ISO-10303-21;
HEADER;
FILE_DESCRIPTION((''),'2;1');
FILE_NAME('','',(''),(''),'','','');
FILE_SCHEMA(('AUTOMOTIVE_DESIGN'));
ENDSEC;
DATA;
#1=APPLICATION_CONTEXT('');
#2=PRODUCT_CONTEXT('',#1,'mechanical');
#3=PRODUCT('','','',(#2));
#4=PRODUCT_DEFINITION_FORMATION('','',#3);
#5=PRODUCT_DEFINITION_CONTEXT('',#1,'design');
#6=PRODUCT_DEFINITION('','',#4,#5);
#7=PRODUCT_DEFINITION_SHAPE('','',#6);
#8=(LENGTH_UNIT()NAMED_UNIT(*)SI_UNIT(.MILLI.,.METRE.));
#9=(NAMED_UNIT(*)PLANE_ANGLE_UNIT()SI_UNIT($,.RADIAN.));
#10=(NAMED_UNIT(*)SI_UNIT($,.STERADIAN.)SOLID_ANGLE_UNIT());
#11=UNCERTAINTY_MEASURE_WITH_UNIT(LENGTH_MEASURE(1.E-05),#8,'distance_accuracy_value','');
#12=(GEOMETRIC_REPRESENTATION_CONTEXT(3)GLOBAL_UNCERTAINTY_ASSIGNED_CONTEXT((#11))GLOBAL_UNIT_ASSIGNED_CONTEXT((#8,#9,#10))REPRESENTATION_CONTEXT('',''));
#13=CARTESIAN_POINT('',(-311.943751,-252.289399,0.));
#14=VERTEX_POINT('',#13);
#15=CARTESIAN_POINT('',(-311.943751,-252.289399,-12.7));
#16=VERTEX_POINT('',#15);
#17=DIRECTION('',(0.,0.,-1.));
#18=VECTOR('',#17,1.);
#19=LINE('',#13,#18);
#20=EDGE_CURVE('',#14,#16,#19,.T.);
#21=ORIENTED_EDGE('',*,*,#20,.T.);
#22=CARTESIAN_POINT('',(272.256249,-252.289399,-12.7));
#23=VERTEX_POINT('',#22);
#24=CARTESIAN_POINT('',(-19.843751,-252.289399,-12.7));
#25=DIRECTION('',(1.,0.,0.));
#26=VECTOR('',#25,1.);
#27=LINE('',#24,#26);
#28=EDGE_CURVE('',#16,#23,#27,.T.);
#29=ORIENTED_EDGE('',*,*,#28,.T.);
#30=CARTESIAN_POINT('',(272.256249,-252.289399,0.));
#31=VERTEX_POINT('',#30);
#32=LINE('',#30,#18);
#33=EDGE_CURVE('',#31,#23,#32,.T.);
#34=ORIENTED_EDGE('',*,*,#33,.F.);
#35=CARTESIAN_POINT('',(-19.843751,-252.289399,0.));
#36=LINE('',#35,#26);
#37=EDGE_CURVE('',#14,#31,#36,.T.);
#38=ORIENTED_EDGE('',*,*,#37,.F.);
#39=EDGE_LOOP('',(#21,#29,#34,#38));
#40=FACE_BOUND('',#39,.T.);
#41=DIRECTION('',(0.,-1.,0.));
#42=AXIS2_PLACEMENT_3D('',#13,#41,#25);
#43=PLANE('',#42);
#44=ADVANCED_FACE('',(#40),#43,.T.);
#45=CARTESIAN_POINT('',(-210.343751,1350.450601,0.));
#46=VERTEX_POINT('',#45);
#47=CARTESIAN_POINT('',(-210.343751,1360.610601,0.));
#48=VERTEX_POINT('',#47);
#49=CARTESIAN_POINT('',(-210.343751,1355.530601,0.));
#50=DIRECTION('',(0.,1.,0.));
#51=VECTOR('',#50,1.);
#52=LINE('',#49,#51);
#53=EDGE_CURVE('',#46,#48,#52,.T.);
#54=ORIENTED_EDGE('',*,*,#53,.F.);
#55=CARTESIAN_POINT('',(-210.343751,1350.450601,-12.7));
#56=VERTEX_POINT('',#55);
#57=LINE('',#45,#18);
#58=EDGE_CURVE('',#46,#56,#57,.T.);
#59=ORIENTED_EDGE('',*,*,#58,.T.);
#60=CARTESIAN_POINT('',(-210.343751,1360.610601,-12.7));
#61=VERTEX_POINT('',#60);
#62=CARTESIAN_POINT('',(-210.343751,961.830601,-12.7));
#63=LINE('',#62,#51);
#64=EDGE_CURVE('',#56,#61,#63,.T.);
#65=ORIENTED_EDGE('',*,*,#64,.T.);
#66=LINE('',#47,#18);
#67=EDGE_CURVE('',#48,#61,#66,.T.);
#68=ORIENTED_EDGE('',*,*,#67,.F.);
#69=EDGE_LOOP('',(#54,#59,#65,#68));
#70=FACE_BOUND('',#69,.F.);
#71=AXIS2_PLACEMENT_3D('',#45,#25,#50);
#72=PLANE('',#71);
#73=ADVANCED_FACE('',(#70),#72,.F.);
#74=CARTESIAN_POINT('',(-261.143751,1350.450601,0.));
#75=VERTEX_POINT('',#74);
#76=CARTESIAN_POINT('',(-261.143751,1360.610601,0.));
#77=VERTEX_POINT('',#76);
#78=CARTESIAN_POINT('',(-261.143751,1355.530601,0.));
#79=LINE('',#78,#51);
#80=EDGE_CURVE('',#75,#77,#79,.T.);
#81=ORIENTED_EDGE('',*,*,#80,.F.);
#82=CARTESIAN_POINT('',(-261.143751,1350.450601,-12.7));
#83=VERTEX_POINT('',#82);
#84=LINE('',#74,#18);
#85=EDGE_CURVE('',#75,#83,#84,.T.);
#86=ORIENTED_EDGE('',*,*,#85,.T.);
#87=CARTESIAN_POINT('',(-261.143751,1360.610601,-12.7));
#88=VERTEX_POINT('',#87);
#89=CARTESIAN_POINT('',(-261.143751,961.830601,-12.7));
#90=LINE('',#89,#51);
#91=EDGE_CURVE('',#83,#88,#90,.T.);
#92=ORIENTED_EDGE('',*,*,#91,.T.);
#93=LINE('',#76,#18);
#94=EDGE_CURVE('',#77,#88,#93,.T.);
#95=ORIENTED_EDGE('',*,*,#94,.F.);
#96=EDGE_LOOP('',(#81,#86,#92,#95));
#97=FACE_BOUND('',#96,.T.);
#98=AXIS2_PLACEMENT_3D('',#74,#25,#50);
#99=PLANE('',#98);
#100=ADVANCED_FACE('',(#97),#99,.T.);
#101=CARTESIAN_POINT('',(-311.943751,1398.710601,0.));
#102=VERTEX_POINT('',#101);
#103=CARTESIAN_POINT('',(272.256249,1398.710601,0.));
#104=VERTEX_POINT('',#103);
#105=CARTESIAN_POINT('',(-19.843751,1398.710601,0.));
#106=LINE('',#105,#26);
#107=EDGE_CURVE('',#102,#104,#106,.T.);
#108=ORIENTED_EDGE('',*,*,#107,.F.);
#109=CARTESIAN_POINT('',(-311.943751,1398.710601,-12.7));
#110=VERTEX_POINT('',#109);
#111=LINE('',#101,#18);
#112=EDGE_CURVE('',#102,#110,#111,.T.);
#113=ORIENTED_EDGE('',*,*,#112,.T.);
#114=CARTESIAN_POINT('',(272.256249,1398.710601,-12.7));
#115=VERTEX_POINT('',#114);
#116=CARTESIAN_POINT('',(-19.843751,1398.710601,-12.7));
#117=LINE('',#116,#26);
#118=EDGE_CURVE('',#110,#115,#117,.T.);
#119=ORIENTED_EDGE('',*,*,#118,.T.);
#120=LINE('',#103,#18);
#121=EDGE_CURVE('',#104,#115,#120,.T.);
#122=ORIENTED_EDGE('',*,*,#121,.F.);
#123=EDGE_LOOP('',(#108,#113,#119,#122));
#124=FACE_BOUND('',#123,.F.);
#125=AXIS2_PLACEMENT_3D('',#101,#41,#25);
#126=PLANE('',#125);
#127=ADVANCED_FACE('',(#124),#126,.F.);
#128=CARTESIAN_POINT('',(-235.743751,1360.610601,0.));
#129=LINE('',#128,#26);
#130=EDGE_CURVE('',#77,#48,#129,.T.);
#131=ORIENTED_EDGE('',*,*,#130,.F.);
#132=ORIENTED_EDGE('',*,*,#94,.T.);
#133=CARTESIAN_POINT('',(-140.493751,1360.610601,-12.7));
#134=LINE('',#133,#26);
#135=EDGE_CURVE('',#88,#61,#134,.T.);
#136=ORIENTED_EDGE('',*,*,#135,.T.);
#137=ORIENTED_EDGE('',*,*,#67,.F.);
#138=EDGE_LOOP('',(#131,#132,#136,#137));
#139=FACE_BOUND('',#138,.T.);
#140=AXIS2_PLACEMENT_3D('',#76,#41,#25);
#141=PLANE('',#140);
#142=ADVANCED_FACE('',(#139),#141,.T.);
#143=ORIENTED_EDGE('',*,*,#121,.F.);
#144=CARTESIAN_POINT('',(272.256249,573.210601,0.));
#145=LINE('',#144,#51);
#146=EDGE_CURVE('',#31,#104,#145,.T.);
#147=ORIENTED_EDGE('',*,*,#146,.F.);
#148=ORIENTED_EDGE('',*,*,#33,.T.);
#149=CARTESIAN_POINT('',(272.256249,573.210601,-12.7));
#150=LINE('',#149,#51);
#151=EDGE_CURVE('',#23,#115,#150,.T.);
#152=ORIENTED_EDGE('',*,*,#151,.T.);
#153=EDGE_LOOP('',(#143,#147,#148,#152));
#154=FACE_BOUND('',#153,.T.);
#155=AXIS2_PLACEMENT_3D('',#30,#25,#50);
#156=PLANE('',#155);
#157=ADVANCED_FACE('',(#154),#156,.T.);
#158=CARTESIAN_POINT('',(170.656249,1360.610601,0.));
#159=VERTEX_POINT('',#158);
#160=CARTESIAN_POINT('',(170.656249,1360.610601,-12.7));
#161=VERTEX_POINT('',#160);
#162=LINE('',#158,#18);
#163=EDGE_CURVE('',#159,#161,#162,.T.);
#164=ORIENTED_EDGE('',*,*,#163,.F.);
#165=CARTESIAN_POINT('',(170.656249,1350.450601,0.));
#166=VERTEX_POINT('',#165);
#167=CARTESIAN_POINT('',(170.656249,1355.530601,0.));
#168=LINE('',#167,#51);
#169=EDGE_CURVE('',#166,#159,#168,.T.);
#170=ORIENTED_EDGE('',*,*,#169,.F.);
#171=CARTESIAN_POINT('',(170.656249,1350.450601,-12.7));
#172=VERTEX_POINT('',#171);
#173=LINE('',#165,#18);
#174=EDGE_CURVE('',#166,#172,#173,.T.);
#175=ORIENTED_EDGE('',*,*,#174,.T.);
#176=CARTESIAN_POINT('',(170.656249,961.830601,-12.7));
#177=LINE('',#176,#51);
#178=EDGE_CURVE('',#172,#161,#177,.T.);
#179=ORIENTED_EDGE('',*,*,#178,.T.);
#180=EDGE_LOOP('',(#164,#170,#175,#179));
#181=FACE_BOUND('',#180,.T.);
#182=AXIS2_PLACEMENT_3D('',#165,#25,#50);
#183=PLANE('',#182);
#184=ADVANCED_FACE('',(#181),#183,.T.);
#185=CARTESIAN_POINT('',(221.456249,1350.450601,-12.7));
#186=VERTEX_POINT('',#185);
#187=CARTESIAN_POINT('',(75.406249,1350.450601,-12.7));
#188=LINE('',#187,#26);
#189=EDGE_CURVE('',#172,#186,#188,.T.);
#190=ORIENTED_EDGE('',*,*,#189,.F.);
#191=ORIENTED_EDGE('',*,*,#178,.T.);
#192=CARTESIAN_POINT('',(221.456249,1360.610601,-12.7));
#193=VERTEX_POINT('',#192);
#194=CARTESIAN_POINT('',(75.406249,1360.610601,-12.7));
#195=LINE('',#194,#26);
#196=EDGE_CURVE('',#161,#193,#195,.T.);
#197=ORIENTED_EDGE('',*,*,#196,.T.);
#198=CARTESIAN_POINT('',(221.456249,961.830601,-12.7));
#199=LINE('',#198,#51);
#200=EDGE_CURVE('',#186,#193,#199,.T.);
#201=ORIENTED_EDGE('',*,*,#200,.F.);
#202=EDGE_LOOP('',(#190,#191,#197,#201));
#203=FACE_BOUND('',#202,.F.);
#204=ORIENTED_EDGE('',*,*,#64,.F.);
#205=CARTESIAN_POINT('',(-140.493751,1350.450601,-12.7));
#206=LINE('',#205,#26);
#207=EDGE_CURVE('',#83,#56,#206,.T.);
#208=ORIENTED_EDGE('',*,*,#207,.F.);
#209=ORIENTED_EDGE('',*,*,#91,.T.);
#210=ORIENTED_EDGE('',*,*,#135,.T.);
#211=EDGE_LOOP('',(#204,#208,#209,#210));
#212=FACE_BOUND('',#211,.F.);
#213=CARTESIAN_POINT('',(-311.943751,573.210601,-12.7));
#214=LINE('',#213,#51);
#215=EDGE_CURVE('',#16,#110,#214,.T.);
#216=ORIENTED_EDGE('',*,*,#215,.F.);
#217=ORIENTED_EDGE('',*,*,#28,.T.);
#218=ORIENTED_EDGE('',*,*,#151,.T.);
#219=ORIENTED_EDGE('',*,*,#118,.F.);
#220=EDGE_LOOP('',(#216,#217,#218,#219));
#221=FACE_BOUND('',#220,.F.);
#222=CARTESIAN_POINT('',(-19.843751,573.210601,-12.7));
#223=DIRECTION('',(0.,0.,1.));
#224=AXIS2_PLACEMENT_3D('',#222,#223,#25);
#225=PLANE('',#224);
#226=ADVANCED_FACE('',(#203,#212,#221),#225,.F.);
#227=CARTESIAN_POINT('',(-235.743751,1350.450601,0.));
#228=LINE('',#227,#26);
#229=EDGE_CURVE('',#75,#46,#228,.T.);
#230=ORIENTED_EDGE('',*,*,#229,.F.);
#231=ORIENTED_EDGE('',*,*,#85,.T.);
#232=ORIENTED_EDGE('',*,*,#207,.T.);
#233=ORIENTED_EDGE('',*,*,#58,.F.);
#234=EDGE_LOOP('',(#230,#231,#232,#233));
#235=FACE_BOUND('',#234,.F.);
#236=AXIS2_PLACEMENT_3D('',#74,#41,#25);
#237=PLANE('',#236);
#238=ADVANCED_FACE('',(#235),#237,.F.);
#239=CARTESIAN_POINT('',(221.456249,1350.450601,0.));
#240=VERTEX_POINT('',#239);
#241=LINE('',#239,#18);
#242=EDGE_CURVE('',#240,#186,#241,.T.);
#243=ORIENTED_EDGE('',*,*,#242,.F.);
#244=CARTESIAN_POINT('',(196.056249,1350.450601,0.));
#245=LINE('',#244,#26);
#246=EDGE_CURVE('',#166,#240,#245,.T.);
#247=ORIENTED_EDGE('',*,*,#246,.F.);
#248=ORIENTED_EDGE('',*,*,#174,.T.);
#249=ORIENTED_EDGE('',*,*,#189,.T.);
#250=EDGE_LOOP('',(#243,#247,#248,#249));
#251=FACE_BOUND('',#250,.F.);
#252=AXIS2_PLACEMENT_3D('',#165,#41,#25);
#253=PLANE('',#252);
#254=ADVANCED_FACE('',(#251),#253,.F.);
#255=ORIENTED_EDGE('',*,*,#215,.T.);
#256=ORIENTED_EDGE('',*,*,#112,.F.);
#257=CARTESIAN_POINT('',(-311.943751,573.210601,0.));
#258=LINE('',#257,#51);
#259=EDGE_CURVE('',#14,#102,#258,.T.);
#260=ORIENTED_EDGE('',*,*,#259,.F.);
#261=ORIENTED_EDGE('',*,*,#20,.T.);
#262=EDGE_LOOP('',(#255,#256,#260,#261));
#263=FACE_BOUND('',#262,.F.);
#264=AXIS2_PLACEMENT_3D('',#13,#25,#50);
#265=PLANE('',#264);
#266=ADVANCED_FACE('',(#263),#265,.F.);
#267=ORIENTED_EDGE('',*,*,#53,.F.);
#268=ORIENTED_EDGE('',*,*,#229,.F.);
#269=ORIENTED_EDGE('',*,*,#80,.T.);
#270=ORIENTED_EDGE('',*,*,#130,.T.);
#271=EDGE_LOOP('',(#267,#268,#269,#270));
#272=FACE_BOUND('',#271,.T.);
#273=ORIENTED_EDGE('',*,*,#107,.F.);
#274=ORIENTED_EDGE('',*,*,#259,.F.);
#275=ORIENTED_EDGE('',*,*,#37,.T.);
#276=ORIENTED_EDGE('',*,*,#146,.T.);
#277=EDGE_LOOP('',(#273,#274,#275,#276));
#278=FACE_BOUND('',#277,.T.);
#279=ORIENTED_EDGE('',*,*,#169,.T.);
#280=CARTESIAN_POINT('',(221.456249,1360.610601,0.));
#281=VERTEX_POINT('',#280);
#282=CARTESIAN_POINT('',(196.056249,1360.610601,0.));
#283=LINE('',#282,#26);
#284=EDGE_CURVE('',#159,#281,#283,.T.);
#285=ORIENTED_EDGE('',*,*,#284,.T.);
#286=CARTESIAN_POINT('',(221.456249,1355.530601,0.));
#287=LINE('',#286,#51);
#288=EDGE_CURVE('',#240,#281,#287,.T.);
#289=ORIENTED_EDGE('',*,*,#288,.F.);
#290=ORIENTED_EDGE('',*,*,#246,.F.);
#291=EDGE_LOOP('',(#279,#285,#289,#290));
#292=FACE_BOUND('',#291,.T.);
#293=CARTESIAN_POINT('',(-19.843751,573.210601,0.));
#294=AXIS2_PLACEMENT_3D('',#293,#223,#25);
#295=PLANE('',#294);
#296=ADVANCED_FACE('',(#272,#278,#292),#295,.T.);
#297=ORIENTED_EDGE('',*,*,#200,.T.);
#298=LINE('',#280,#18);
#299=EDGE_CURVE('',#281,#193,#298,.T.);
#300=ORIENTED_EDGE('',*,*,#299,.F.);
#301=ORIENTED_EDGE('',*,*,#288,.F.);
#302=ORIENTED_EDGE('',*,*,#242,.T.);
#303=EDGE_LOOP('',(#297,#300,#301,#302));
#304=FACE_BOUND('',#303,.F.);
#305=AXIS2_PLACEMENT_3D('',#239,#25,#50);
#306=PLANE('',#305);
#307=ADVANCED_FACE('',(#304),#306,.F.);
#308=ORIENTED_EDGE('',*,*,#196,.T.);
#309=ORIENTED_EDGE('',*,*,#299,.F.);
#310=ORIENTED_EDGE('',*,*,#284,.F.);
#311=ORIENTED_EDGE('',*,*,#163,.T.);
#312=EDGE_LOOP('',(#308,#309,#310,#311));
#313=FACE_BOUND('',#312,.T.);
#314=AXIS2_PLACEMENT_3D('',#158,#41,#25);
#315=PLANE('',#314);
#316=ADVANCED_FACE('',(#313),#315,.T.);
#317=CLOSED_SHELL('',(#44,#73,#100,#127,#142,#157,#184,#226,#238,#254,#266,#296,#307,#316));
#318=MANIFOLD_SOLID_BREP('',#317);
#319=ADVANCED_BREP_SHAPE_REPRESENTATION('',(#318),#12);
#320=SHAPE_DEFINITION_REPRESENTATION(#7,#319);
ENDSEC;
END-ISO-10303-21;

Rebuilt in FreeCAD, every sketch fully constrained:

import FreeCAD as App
import Part
import Sketcher
Q = App.Units.Quantity

doc = App.newDocument("Part")
body = doc.addObject("PartDesign::Body", "Body")

# Sketch on XY plane
sketch1 = body.newObject("Sketcher::SketchObject", "Sketch")
sketch1.AttachmentSupport = (doc.getObject("XY_Plane"), [""])
sketch1.MapMode = "FlatFace"
sketch1.addGeometry([
    Part.LineSegment(App.Vector(-312, 1399, 0), App.Vector(-312, -252, 0)),
    Part.LineSegment(App.Vector(-312, -252, 0), App.Vector(272, -252, 0)),
    Part.LineSegment(App.Vector(272, -252, 0), App.Vector(272, 1399, 0)),
    Part.LineSegment(App.Vector(272, 1399, 0), App.Vector(-312, 1399, 0)),
], False)
sketch1.addConstraint([
    Sketcher.Constraint("Coincident", 0, 2, 1, 1),
    Sketcher.Constraint("Coincident", 1, 2, 2, 1),
    Sketcher.Constraint("Coincident", 2, 2, 3, 1),
    Sketcher.Constraint("Coincident", 3, 2, 0, 1),
    Sketcher.Constraint("Vertical", 0),
    Sketcher.Constraint("Horizontal", 1),
    Sketcher.Constraint("Vertical", 2),
    Sketcher.Constraint("Horizontal", 3),
    Sketcher.Constraint("DistanceX", 1, 1, 1, 2, Q("23 in")),
    Sketcher.Constraint("DistanceY", 0, 2, 0, 1, Q("65 in")),
    Sketcher.Constraint("DistanceX", 0, 2, -1, 1, Q("12.28125 in")),
    Sketcher.Constraint("DistanceY", 0, 2, -1, 1, 252.289399),
])
pad1 = body.newObject("PartDesign::Pad", "Pad")
pad1.Profile = sketch1
pad1.Length = Q("0.5 in")
pad1.Reversed = True

# Sketch on XY plane
sketch2 = body.newObject("Sketcher::SketchObject", "Sketch001")
sketch2.AttachmentSupport = (doc.getObject("XY_Plane"), [""])
sketch2.MapMode = "FlatFace"
sketch2.addGeometry([
    Part.LineSegment(App.Vector(-261, 1361, 0), App.Vector(-261, 1350, 0)),  # 0
    Part.LineSegment(App.Vector(-261, 1350, 0), App.Vector(-210, 1350, 0)),  # 1
    Part.LineSegment(App.Vector(-210, 1350, 0), App.Vector(-210, 1361, 0)),  # 2
    Part.LineSegment(App.Vector(-210, 1361, 0), App.Vector(-261, 1361, 0)),  # 3
    Part.LineSegment(App.Vector(171, 1361, 0), App.Vector(171, 1350, 0)),  # 4
    Part.LineSegment(App.Vector(171, 1350, 0), App.Vector(221, 1350, 0)),  # 5
    Part.LineSegment(App.Vector(221, 1350, 0), App.Vector(221, 1361, 0)),  # 6
    Part.LineSegment(App.Vector(221, 1361, 0), App.Vector(171, 1361, 0)),  # 7
], False)
sketch2.addConstraint([
    Sketcher.Constraint("Coincident", 0, 2, 1, 1),
    Sketcher.Constraint("Coincident", 1, 2, 2, 1),
    Sketcher.Constraint("Coincident", 2, 2, 3, 1),
    Sketcher.Constraint("Coincident", 3, 2, 0, 1),
    Sketcher.Constraint("Coincident", 4, 2, 5, 1),
    Sketcher.Constraint("Coincident", 5, 2, 6, 1),
    Sketcher.Constraint("Coincident", 6, 2, 7, 1),
    Sketcher.Constraint("Coincident", 7, 2, 4, 1),
    Sketcher.Constraint("Vertical", 0),
    Sketcher.Constraint("Horizontal", 1),
    Sketcher.Constraint("Vertical", 2),
    Sketcher.Constraint("Horizontal", 3),
    Sketcher.Constraint("Vertical", 4),
    Sketcher.Constraint("Horizontal", 5),
    Sketcher.Constraint("Vertical", 6),
    Sketcher.Constraint("Horizontal", 7),
    Sketcher.Constraint("Horizontal", 1, 2, 4, 2),
    Sketcher.Constraint("Horizontal", 3, 2, 6, 2),
    Sketcher.Constraint("Equal", 3, 5),
    Sketcher.Constraint("DistanceX", 1, 1, 1, 2, Q("2 in")),
    Sketcher.Constraint("DistanceY", 0, 2, 0, 1, Q("0.4 in")),
    Sketcher.Constraint("DistanceX", 1, 2, 4, 2, Q("15 in")),
    Sketcher.Constraint("DistanceX", 0, 2, -1, 1, Q("10.28125 in")),
    Sketcher.Constraint("DistanceY", -1, 1, 0, 2, 1350.450601),
])
pocket1 = body.newObject("PartDesign::Pocket", "Pocket")
pocket1.Profile = sketch2
pocket1.Length = Q("0.6 in")

doc.recompute()
